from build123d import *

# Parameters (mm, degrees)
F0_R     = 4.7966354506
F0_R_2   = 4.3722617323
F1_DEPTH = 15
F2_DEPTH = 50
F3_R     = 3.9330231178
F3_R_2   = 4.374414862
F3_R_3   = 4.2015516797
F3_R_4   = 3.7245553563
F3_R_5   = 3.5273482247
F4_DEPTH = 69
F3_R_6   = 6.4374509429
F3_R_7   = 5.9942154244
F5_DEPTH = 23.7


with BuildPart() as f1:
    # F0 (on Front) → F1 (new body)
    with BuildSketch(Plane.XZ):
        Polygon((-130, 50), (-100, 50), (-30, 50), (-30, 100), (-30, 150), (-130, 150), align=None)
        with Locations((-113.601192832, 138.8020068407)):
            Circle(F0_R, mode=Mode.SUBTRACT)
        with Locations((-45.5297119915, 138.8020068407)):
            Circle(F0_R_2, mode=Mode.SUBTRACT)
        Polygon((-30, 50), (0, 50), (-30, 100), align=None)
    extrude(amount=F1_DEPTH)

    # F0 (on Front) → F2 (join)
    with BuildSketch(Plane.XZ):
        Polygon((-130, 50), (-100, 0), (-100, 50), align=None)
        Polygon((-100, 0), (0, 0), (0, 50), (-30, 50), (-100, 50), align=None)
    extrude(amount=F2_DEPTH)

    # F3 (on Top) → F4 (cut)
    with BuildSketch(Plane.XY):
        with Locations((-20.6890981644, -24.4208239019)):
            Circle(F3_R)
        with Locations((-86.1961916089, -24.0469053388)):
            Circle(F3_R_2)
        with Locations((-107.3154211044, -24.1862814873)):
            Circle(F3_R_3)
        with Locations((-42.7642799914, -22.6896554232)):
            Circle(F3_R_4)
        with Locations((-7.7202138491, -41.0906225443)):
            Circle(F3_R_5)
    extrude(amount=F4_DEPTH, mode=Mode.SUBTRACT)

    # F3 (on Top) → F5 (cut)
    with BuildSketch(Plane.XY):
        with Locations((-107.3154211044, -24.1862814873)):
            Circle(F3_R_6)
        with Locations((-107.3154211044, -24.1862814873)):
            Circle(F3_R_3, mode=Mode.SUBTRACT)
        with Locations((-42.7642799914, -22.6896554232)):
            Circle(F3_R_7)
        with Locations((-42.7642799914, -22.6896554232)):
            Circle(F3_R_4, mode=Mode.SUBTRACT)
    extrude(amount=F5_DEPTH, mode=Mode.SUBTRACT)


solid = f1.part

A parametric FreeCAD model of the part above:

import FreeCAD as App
import Part
import Sketcher

V = App.Vector
Q = App.Units.Quantity

doc = App.newDocument("Part")
body = doc.addObject("PartDesign::Body", "Body")

sketch1 = body.newObject("Sketcher::SketchObject", "Sketch")
sketch1.AttachmentSupport = (doc.getObject("XZ_Plane"), [""])
sketch1.MapMode = "FlatFace"
sketch1.addGeometry([
    Part.LineSegment(V(-130, 50, 0), V(0, 50, 0)),
    Part.LineSegment(V(0, 50, 0), V(-30, 100, 0)),
    Part.LineSegment(V(-30, 100, 0), V(-30, 150, 0)),
    Part.LineSegment(V(-30, 150, 0), V(-130, 150, 0)),
    Part.LineSegment(V(-130, 150, 0), V(-130, 50, 0)),
    Part.Circle(V(-113.6, 138.8, 0), V(0, 0, 1), 4.8),
    Part.Circle(V(-45.5, 138.8, 0), V(0, 0, 1), 4.4),
], False)
sketch1.addConstraint([
    Sketcher.Constraint("Coincident", 0, 2, 1, 1),
    Sketcher.Constraint("Coincident", 1, 2, 2, 1),
    Sketcher.Constraint("Coincident", 2, 2, 3, 1),
    Sketcher.Constraint("Coincident", 3, 2, 4, 1),
    Sketcher.Constraint("Coincident", 4, 2, 0, 1),
    Sketcher.Constraint("Horizontal", 0),
    Sketcher.Constraint("Vertical", 2),
    Sketcher.Constraint("Horizontal", 3),
    Sketcher.Constraint("Vertical", 4),
    Sketcher.Constraint("PointOnObject", 0, 2, -2),
    Sketcher.Constraint("Horizontal", 5, 3, 6, 3),
    Sketcher.Constraint("Equal", 3, 4),
    Sketcher.Constraint("DistanceX", 0, 1, 0, 2, Q("130 mm")),
    Sketcher.Constraint("DistanceX", 3, 2, 3, 1, Q("100 mm")),
    Sketcher.Constraint("DistanceY", 2, 1, 2, 2, Q("50 mm")),
    Sketcher.Constraint("DistanceY", -1, 1, 0, 2, Q("50 mm")),
    Sketcher.Constraint("Diameter", 5, Q("9.593271 mm")),
    Sketcher.Constraint("Diameter", 6, Q("8.744523 mm")),
    Sketcher.Constraint("DistanceX", 6, 3, -1, 1, Q("45.529712 mm")),
    Sketcher.Constraint("DistanceX", 5, 3, 6, 3, Q("68.071481 mm")),
    Sketcher.Constraint("DistanceY", -1, 1, 5, 3, Q("138.802007 mm")),
])
pad1 = body.newObject("PartDesign::Pad", "Pad")
pad1.Profile = sketch1
pad1.Length = 15

sketch2 = body.newObject("Sketcher::SketchObject", "Sketch001")
sketch2.AttachmentSupport = (doc.getObject("XZ_Plane"), [""])
sketch2.MapMode = "FlatFace"
sketch2.addGeometry([
    Part.LineSegment(V(-130, 50, 0), V(-100, 0, 0)),
    Part.LineSegment(V(-100, 0, 0), V(0, 0, 0)),
    Part.LineSegment(V(0, 0, 0), V(0, 50, 0)),
    Part.LineSegment(V(0, 50, 0), V(-130, 50, 0)),
], False)
sketch2.addConstraint([
    Sketcher.Constraint("Coincident", 0, 2, 1, 1),
    Sketcher.Constraint("Coincident", 1, 2, 2, 1),
    Sketcher.Constraint("Coincident", 2, 2, 3, 1),
    Sketcher.Constraint("Coincident", 3, 2, 0, 1),
    Sketcher.Constraint("Horizontal", 1),
    Sketcher.Constraint("Vertical", 2),
    Sketcher.Constraint("Horizontal", 3),
    Sketcher.Constraint("Coincident", 1, 2, -1, 1),
    Sketcher.Constraint("DistanceX", 1, 1, 1, 2, Q("100 mm")),
    Sketcher.Constraint("DistanceX", 3, 2, 3, 1, Q("130 mm")),
    Sketcher.Constraint("DistanceY", 2, 1, 2, 2, Q("50 mm")),
])
pad2 = body.newObject("PartDesign::Pad", "Pad001")
pad2.Profile = sketch2
pad2.Length = 50

sketch3 = body.newObject("Sketcher::SketchObject", "Sketch002")
sketch3.AttachmentSupport = (doc.getObject("XY_Plane"), [""])
sketch3.MapMode = "FlatFace"
sketch3.addGeometry([
    Part.Circle(V(-20.7, -24.4, 0), V(0, 0, 1), 3.9),
    Part.Circle(V(-86.2, -24, 0), V(0, 0, 1), 4.4),
    Part.Circle(V(-107.3, -24.2, 0), V(0, 0, 1), 4.2),
    Part.Circle(V(-42.8, -22.7, 0), V(0, 0, 1), 3.7),
    Part.Circle(V(-7.7, -41.1, 0), V(0, 0, 1), 3.5),
], False)
sketch3.addConstraint([
    Sketcher.Constraint("Diameter", 1, Q("8.74883 mm")),
    Sketcher.Constraint("Diameter", 3, Q("7.449111 mm")),
    Sketcher.Constraint("Diameter", 0, Q("7.866046 mm")),
    Sketcher.Constraint("Diameter", 2, Q("8.403103 mm")),
    Sketcher.Constraint("Diameter", 4, Q("7.054696 mm")),
    Sketcher.Constraint("DistanceX", 0, 3, -1, 1, Q("20.689098 mm")),
    Sketcher.Constraint("DistanceY", 4, 3, 0, 3, Q("16.669799 mm")),
    Sketcher.Constraint("DistanceX", 1, 3, -1, 1, Q("86.196192 mm")),
    Sketcher.Constraint("DistanceX", 2, 3, -1, 1, Q("107.315421 mm")),
    Sketcher.Constraint("DistanceY", 2, 3, -1, 1, Q("24.186281 mm")),
    Sketcher.Constraint("DistanceX", 3, 3, -1, 1, Q("42.76428 mm")),
    Sketcher.Constraint("DistanceY", 0, 3, 1, 3, Q("0.373919 mm")),
    Sketcher.Constraint("DistanceY", 0, 3, 3, 3, Q("1.731168 mm")),
    Sketcher.Constraint("DistanceY", 4, 3, 2, 3, Q("16.904341 mm")),
    Sketcher.Constraint("DistanceX", 4, 3, -1, 1, Q("7.720214 mm")),
])
pocket1 = body.newObject("PartDesign::Pocket", "Pocket")
pocket1.Profile = sketch3
pocket1.Length = 69
pocket1.Reversed = True

sketch4 = body.newObject("Sketcher::SketchObject", "Sketch003")
sketch4.AttachmentSupport = (doc.getObject("XY_Plane"), [""])
sketch4.MapMode = "FlatFace"
sketch4.addGeometry([
    Part.Circle(V(-107.3, -24.2, 0), V(0, 0, 1), 6.4),
    Part.Circle(V(-107.3, -24.2, 0), V(0, 0, 1), 4.2),
    Part.Circle(V(-42.8, -22.7, 0), V(0, 0, 1), 6),
    Part.Circle(V(-42.8, -22.7, 0), V(0, 0, 1), 3.7),
], False)
sketch4.addConstraint([
    Sketcher.Constraint("Coincident", 1, 3, 0, 3),
    Sketcher.Constraint("Coincident", 3, 3, 2, 3),
    Sketcher.Constraint("Diameter", 0, Q("12.874902 mm")),
    Sketcher.Constraint("Diameter", 2, Q("11.988431 mm")),
    Sketcher.Constraint("Diameter", 3, Q("7.449111 mm")),
    Sketcher.Constraint("Diameter", 1, Q("8.403103 mm")),
    Sketcher.Constraint("DistanceX", 0, 3, -1, 1, Q("107.315421 mm")),
    Sketcher.Constraint("DistanceY", 0, 3, -1, 1, Q("24.186281 mm")),
    Sketcher.Constraint("DistanceX", 2, 3, -1, 1, Q("42.76428 mm")),
    Sketcher.Constraint("DistanceY", 2, 3, -1, 1, Q("22.689655 mm")),
])
pocket2 = body.newObject("PartDesign::Pocket", "Pocket001")
pocket2.Profile = sketch4
pocket2.Length = 23.7
pocket2.Reversed = True

doc.recompute()
